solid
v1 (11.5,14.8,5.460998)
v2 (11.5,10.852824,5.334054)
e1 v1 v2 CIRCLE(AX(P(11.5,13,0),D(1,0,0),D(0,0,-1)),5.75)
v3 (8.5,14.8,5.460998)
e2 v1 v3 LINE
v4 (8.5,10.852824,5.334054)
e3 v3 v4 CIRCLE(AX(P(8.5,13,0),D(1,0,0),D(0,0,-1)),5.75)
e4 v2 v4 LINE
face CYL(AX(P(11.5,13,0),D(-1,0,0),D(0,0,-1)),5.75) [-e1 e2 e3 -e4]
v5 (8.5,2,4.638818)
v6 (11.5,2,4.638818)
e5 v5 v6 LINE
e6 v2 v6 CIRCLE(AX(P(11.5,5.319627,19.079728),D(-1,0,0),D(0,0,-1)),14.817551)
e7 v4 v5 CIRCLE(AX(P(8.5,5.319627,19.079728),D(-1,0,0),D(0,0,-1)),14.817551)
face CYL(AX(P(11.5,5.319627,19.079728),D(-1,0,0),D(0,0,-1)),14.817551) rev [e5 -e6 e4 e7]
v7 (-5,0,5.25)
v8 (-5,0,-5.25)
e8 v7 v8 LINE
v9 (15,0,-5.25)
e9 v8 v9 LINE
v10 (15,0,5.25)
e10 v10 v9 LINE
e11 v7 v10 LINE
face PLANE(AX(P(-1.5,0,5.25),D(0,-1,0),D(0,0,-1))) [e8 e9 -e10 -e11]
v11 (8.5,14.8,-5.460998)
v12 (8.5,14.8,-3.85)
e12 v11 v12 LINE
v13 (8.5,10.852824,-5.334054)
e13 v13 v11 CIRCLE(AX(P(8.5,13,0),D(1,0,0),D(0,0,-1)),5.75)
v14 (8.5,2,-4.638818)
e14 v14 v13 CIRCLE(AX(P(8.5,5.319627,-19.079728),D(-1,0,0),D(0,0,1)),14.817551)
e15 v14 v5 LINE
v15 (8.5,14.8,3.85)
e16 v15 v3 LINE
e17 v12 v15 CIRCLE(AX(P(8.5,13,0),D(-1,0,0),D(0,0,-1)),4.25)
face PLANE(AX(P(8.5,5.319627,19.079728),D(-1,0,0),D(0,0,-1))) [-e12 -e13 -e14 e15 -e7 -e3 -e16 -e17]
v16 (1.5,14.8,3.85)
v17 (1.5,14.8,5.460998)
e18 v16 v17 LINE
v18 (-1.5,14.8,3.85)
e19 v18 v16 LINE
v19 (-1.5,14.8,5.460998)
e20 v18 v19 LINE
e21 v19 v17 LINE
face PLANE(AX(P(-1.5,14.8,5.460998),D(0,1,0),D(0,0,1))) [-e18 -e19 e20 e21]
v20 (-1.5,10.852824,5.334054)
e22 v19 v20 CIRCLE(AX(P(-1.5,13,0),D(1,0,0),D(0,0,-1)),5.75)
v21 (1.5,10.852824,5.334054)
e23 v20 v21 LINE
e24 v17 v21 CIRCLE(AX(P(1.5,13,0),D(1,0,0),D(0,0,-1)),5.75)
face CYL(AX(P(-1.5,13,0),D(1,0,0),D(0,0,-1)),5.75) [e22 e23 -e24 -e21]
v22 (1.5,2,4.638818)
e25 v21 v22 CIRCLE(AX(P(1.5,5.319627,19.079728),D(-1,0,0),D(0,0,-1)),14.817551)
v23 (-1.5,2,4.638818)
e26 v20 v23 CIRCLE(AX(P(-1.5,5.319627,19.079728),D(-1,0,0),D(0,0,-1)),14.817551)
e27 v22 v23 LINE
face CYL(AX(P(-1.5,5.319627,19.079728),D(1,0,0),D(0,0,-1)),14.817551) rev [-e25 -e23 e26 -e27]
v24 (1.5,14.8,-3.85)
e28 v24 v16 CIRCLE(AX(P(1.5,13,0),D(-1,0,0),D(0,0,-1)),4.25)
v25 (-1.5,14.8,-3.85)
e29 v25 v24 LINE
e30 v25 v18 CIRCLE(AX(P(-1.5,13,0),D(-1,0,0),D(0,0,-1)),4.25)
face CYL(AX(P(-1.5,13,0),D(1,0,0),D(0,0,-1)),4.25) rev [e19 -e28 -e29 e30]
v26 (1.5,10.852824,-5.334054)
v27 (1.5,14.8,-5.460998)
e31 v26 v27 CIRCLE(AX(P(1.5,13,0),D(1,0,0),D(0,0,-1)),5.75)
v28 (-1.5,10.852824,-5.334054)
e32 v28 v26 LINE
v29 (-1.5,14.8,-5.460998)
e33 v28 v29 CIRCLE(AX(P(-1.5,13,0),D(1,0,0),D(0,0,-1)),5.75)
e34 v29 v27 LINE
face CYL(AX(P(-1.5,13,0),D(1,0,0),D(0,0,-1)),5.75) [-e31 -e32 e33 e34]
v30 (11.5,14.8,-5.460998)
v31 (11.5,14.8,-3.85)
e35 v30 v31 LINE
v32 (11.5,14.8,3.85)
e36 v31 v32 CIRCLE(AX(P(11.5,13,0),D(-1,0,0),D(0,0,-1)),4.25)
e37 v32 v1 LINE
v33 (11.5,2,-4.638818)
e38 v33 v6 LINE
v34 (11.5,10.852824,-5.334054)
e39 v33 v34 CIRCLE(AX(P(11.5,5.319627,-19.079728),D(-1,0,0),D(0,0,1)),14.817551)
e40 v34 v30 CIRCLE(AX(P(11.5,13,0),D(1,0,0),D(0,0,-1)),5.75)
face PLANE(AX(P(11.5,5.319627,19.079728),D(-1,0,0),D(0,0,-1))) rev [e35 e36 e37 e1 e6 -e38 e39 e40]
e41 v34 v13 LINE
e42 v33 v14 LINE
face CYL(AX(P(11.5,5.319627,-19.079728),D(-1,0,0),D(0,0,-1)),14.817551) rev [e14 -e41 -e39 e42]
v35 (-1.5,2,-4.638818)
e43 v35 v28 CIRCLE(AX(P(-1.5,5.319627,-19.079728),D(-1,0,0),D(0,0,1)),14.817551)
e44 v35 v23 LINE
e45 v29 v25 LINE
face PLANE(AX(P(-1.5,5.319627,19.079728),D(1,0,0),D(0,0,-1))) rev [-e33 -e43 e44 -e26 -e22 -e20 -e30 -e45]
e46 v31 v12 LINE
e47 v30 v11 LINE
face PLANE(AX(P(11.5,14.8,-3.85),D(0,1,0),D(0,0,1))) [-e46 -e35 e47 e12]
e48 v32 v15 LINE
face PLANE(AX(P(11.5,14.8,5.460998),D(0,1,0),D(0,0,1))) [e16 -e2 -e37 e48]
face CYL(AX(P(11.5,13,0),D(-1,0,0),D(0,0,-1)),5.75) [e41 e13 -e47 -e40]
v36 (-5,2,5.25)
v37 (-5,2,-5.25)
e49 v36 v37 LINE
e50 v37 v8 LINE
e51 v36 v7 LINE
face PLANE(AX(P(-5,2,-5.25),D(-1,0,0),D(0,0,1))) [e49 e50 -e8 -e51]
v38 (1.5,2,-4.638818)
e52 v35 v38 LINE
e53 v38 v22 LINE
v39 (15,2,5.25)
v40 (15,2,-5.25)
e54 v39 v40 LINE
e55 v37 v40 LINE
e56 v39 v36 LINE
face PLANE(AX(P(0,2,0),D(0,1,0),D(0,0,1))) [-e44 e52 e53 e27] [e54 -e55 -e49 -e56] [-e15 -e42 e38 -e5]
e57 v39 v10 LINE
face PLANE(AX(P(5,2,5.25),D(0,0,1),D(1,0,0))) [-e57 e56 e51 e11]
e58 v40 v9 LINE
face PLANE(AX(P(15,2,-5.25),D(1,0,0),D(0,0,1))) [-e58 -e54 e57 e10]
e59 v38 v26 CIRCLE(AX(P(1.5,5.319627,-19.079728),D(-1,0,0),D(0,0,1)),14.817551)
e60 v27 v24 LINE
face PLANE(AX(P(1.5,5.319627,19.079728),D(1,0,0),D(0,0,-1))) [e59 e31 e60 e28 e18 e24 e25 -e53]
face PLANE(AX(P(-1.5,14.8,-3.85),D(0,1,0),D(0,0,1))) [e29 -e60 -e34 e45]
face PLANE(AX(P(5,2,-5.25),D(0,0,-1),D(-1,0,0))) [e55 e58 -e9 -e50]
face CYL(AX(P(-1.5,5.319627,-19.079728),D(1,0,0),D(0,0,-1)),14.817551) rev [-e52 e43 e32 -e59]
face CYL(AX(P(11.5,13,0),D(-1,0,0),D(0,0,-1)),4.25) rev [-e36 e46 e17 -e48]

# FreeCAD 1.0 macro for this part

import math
import FreeCAD as App
import Part
import Sketcher

V = App.Vector


def add_polygon(sketch, points):
    """Adds a closed chain of lines whose ends are joined by coincident constraints."""
    first, n = sketch.GeometryCount, len(points)
    for a, b in zip(points, points[1:] + points[:1]):
        sketch.addGeometry(Part.LineSegment(App.Vector(*a, 0), App.Vector(*b, 0)), False)
    for i in range(n):
        sketch.addConstraint(Sketcher.Constraint("Coincident", first + i, 2, first + (i + 1) % n, 1))

doc = App.newDocument("Part")
params = doc.addObject("Spreadsheet::Sheet", "Params")
for row, (alias, value) in enumerate([
    ("sketch1_radius", "5.75 mm"),
    ("sketch1_radius2", "4.25 mm"),
    ("sketch1_height", "10.5 mm"),
    ("pad1_length", "1.5 mm"),
    ("pad1_length2", "1.5 mm"),
    ("sketch2_width", "10 mm"),
    ("sketch2_height", "10.5 mm"),
    ("pad2_length", "2 mm"),
], start=1):
    params.set(f"A{row}", alias)
    params.set(f"B{row}", "=" + value)
    params.setAlias(f"B{row}", alias)

body = doc.addObject("PartDesign::Body", "Body")

# Sketch on YZ plane
sketch1 = doc.addObject("Sketcher::SketchObject", "Sketch")
body.addObject(sketch1)
sketch1.AttachmentSupport = (doc.YZ_Plane, [""])
sketch1.MapMode = "FlatFace"
sketch1.addGeometry(Part.LineSegment(V(14.8, 3.85, 0), V(14.8, 5.460998, 0)), False)
sketch1.addGeometry(Part.ArcOfCircle(Part.Circle(V(13, 0, 0), V(0, 0, 1), 5.75), math.radians(71.757259), math.radians(111.926807)), False)
sketch1.addGeometry(Part.ArcOfCircle(Part.Circle(V(5.319627, 19.079728, 0), V(0, 0, 1), 14.817551), math.radians(-111.03932), math.radians(-68.073193)), False)
sketch1.addGeometry(Part.LineSegment(V(0, 5.25, 0), V(0, -5.25, 0)), False)
sketch1.addGeometry(Part.ArcOfCircle(Part.Circle(V(5.319627, -19.079728, 0), V(0, 0, 1), 14.817551), math.radians(68.073193), math.radians(111.03932)), False)
sketch1.addGeometry(Part.ArcOfCircle(Part.Circle(V(13, 0, 0), V(0, 0, 1), 5.75), math.radians(-111.926807), math.radians(-71.757259)), False)
sketch1.addGeometry(Part.LineSegment(V(14.8, -5.460998, 0), V(14.8, -3.85, 0)), False)
sketch1.addGeometry(Part.ArcOfCircle(Part.Circle(V(13, 0, 0), V(0, 0, 1), 4.25), math.radians(64.942385), math.radians(295.057615)), False)
sketch1.addConstraint(Sketcher.Constraint("Coincident", 0, 2, 1, 1))
sketch1.addConstraint(Sketcher.Constraint("Tangent", 1, 2, 2, 2))
sketch1.addConstraint(Sketcher.Constraint("Coincident", 2, 1, 3, 1))
sketch1.addConstraint(Sketcher.Constraint("Coincident", 3, 2, 4, 2))
sketch1.addConstraint(Sketcher.Constraint("Tangent", 4, 1, 5, 1))
sketch1.addConstraint(Sketcher.Constraint("Coincident", 5, 2, 6, 1))
sketch1.addConstraint(Sketcher.Constraint("Coincident", 6, 2, 7, 2))
sketch1.addConstraint(Sketcher.Constraint("Coincident", 7, 1, 0, 1))
sketch1.addConstraint(Sketcher.Constraint("Vertical", 0))
sketch1.addConstraint(Sketcher.Constraint("Vertical", 3))
sketch1.addConstraint(Sketcher.Constraint("Vertical", 6))
sketch1.addConstraint(Sketcher.Constraint("Coincident", 5, 3, 1, 3))
sketch1.addConstraint(Sketcher.Constraint("Coincident", 7, 3, 1, 3))
sketch1.addConstraint(Sketcher.Constraint("Equal", 2, 4))
sketch1.addConstraint(Sketcher.Constraint("Equal", 1, 5))
sketch1.addConstraint(Sketcher.Constraint("Symmetric", 2, 1, 3, 2, -1, 1))
sketch1.addConstraint(Sketcher.Constraint("Symmetric", 0, 2, 5, 2, -1))
sketch1.addConstraint(Sketcher.Constraint("Radius", 1, 5.75))
sketch1.addConstraint(Sketcher.Constraint("Radius", 7, 4.25))
sketch1.addConstraint(Sketcher.Constraint("DistanceY", 3, 2, 3, 1, 10.5))
sketch1.addConstraint(Sketcher.Constraint("DistanceX", -1, 1, 1, 3, 13.0))
sketch1.addConstraint(Sketcher.Constraint("DistanceX", -1, 1, 0, 2, 14.8))
sketch1.addConstraint(Sketcher.Constraint("Radius", 2, 14.817551))
sketch1.setExpression("Constraints[17]", "Params.sketch1_radius")
sketch1.setExpression("Constraints[18]", "Params.sketch1_radius2")
sketch1.setExpression("Constraints[19]", "Params.sketch1_height")
pad1 = doc.addObject("PartDesign::Pad", "Pad")
body.addObject(pad1)
pad1.Profile = sketch1
pad1.Type = "TwoLengths"
pad1.setExpression("Length", "Params.pad1_length")
pad1.setExpression("Length2", "Params.pad1_length2")

# Sketch on XZ plane
sketch2 = doc.addObject("Sketcher::SketchObject", "Sketch001")
body.addObject(sketch2)
sketch2.AttachmentSupport = (doc.XZ_Plane, [""])
sketch2.MapMode = "FlatFace"
add_polygon(sketch2, [(-5, 5.25), (-5, -5.25), (5, -5.25), (5, 5.25)])  # lines 0-3
sketch2.addConstraint(Sketcher.Constraint("Vertical", 0))
sketch2.addConstraint(Sketcher.Constraint("Horizontal", 1))
sketch2.addConstraint(Sketcher.Constraint("Vertical", 2))
sketch2.addConstraint(Sketcher.Constraint("Horizontal", 3))
sketch2.addConstraint(Sketcher.Constraint("Symmetric", 0, 2, 2, 2, -1, 1))
sketch2.addConstraint(Sketcher.Constraint("DistanceX", 1, 1, 1, 2, 10.0))
sketch2.addConstraint(Sketcher.Constraint("DistanceY", 0, 2, 0, 1, 10.5))
sketch2.setExpression("Constraints[9]", "Params.sketch2_width")
sketch2.setExpression("Constraints[10]", "Params.sketch2_height")
pad2 = doc.addObject("PartDesign::Pad", "Pad001")
body.addObject(pad2)
pad2.Profile = sketch2
pad2.setExpression("Length", "Params.pad2_length")
pad2.Reversed = True
body2 = doc.addObject("PartDesign::Body", "Body001")
doc.recompute()

body2.BaseFeature = body
doc.recompute()

mirroring = doc.addObject("Part::Mirroring", "Mirroring")
mirroring.Source = body
mirroring.Base = V(5, 2, -5.25)
mirroring.Normal = V(1, 0, 0)
body3 = doc.addObject("PartDesign::Body", "Body002")
body3.BaseFeature = mirroring
boolean = doc.addObject("PartDesign::Boolean", "Boolean")
body2.addObject(boolean)
boolean.Type = "Fuse"
boolean.addObjects([body3])
doc.recompute()
mirroring.Visibility = False

doc.recompute()
